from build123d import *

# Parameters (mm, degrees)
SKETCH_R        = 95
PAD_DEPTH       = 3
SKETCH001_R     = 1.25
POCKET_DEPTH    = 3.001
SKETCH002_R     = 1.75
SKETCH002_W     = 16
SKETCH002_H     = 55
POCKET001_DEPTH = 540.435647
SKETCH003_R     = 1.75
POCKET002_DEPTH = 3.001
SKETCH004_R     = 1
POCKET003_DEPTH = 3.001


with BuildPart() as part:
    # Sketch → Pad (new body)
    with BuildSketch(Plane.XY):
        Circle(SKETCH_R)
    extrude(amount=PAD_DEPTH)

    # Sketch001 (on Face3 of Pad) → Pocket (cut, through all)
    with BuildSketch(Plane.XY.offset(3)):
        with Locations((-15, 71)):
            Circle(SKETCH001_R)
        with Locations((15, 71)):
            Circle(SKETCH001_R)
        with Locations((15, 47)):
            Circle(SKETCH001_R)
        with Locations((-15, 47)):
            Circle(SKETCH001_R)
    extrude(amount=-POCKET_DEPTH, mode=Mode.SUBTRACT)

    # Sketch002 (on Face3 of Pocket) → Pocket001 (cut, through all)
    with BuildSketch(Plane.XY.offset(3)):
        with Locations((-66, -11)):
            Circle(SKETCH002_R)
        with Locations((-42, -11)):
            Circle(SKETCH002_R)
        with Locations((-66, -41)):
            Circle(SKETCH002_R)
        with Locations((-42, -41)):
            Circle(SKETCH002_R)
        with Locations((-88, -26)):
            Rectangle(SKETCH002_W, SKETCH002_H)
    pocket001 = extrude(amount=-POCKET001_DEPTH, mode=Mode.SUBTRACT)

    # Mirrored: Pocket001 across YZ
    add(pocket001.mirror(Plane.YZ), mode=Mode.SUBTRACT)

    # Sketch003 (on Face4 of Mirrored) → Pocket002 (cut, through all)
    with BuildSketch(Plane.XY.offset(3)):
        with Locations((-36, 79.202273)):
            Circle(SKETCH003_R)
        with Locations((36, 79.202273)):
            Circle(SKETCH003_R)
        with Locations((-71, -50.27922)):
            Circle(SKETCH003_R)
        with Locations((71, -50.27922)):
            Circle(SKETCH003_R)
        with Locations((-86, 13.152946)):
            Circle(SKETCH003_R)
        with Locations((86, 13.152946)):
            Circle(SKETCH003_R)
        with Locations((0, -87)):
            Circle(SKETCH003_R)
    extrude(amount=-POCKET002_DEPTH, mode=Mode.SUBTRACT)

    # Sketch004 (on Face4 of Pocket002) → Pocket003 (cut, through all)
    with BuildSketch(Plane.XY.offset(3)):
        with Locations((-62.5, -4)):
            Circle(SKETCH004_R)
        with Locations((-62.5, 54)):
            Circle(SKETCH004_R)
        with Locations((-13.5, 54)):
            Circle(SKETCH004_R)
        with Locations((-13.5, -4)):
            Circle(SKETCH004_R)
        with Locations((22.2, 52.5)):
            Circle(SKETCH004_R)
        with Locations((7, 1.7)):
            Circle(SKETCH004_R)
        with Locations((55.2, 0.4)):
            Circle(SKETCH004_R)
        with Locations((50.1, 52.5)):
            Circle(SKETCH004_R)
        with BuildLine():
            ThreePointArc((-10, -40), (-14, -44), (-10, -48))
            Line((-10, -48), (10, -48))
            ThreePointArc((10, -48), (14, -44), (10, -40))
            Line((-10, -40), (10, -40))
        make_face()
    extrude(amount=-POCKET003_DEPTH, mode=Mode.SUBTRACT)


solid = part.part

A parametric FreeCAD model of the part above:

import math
import FreeCAD as App
import Part
import Sketcher

V = App.Vector
Q = App.Units.Quantity


def add_polygon(sketch, points):
    """Adds a closed chain of lines whose ends are joined by coincident constraints."""
    first, n = sketch.GeometryCount, len(points)
    for a, b in zip(points, points[1:] + points[:1]):
        sketch.addGeometry(Part.LineSegment(App.Vector(*a, 0), App.Vector(*b, 0)), False)
    for i in range(n):
        sketch.addConstraint(Sketcher.Constraint("Coincident", first + i, 2, first + (i + 1) % n, 1))

doc = App.newDocument("Part")
params = doc.addObject("Spreadsheet::Sheet", "Params")
for row, (alias, value) in enumerate([
    ("sketch1_diameter", "190 mm"),
    ("pad1_length", "3 mm"),
    ("sketch2_diameter", "2.5 mm"),
    ("sketch3_diameter", "3.5 mm"),
    ("sketch3_width", "16 mm"),
    ("sketch3_height", "55 mm"),
    ("sketch4_diameter", "3.5 mm"),
    ("sketch5_diameter", "2 mm"),
    ("sketch5_radius", "4 mm"),
    ("sketch5_width", "20 mm"),
], start=1):
    params.set(f"A{row}", alias)
    params.set(f"B{row}", "=" + value)
    params.setAlias(f"B{row}", alias)

body = doc.addObject("PartDesign::Body", "Body")

# Sketch on XY plane
sketch1 = body.newObject("Sketcher::SketchObject", "Sketch")
sketch1.AttachmentSupport = (doc.getObject("XY_Plane"), [""])
sketch1.MapMode = "FlatFace"
sketch1.addGeometry(Part.Circle(V(0, 0, 0), V(0, 0, 1), 95), False)
sketch1.addConstraint([
    Sketcher.Constraint("Coincident", 0, 3, -1, 1),
    Sketcher.Constraint("Diameter", 0, Q("190 mm")),
])
sketch1.setExpression("Constraints[1]", "Params.sketch1_diameter")
pad1 = body.newObject("PartDesign::Pad", "Pad")
pad1.Profile = sketch1
pad1.setExpression("Length", "Params.pad1_length")

# Sketch on XY plane
sketch2 = body.newObject("Sketcher::SketchObject", "Sketch001")
sketch2.AttachmentSupport = (doc.getObject("XY_Plane"), [""])
sketch2.MapMode = "FlatFace"
sketch2.AttachmentOffset = App.Placement(V(0, 0, 3), App.Rotation())
sketch2.addGeometry([
    Part.Circle(V(-15, 71, 0), V(0, 0, 1), 1.2),
    Part.Circle(V(15, 71, 0), V(0, 0, 1), 1.2),
    Part.Circle(V(15, 47, 0), V(0, 0, 1), 1.2),
    Part.Circle(V(-15, 47, 0), V(0, 0, 1), 1.2),
], False)
sketch2.addConstraint([
    Sketcher.Constraint("Equal", 0, 1),
    Sketcher.Constraint("Equal", 1, 2),
    Sketcher.Constraint("Equal", 2, 3),
    Sketcher.Constraint("Symmetric", 0, 3, 1, 3, -2),
    Sketcher.Constraint("Symmetric", 2, 3, 3, 3, -2),
    Sketcher.Constraint("Vertical", 1, 3, 2, 3),
    Sketcher.Constraint("Diameter", 0, Q("2.5 mm")),
    Sketcher.Constraint("DistanceX", 0, 3, -1, 1, Q("15 mm")),
    Sketcher.Constraint("DistanceY", -1, 1, 0, 3, Q("71 mm")),
    Sketcher.Constraint("DistanceY", -1, 1, 2, 3, Q("47 mm")),
])
sketch2.setExpression("Constraints[6]", "Params.sketch2_diameter")
pocket1 = body.newObject("PartDesign::Pocket", "Pocket")
pocket1.Profile = sketch2
pocket1.Type = "ThroughAll"

# Sketch on XY plane
sketch3 = body.newObject("Sketcher::SketchObject", "Sketch002")
sketch3.AttachmentSupport = (doc.getObject("XY_Plane"), [""])
sketch3.MapMode = "FlatFace"
sketch3.AttachmentOffset = App.Placement(V(0, 0, 3), App.Rotation())
sketch3.addGeometry(Part.Circle(V(-66, -11, 0), V(0, 0, 1), 1.8), False)  # 0
sketch3.addGeometry(Part.Circle(V(-42, -11, 0), V(0, 0, 1), 1.8), False)  # 1
sketch3.addGeometry(Part.Circle(V(-66, -41, 0), V(0, 0, 1), 1.8), False)  # 2
sketch3.addGeometry(Part.Circle(V(-42, -41, 0), V(0, 0, 1), 1.8), False)  # 3
add_polygon(sketch3, [(-96, 1.5), (-96, -53.5), (-80, -53.5), (-80, 1.5)])  # lines 4-7
sketch3.addConstraint([
    Sketcher.Constraint("Vertical", 4),
    Sketcher.Constraint("Horizontal", 5),
    Sketcher.Constraint("Vertical", 6),
    Sketcher.Constraint("Horizontal", 7),
    Sketcher.Constraint("Equal", 0, 1),
    Sketcher.Constraint("Equal", 1, 2),
    Sketcher.Constraint("Equal", 2, 3),
    Sketcher.Constraint("Horizontal", 0, 3, 1, 3),
    Sketcher.Constraint("Horizontal", 2, 3, 3, 3),
    Sketcher.Constraint("Vertical", 0, 3, 2, 3),
    Sketcher.Constraint("Vertical", 1, 3, 3, 3),
    Sketcher.Constraint("Diameter", 0, Q("3.5 mm")),
    Sketcher.Constraint("DistanceX", 5, 1, 5, 2, Q("16 mm")),
    Sketcher.Constraint("DistanceY", 4, 2, 4, 1, Q("55 mm")),
    Sketcher.Constraint("DistanceX", 0, 3, -1, 1, Q("66 mm")),
    Sketcher.Constraint("DistanceY", 0, 3, -1, 1, Q("11 mm")),
    Sketcher.Constraint("DistanceX", 1, 3, -1, 1, Q("42 mm")),
    Sketcher.Constraint("DistanceY", 2, 3, -1, 1, Q("41 mm")),
    Sketcher.Constraint("DistanceX", 4, 2, -1, 1, Q("96 mm")),
    Sketcher.Constraint("DistanceY", 4, 2, -1, 1, Q("53.5 mm")),
])
sketch3.setExpression("Constraints[15]", "Params.sketch3_diameter")
sketch3.setExpression("Constraints[16]", "Params.sketch3_width")
sketch3.setExpression("Constraints[17]", "Params.sketch3_height")
pocket2 = body.newObject("PartDesign::Pocket", "Pocket001")
pocket2.Profile = sketch3
pocket2.Type = "ThroughAll"
doc.recompute()

mirrored = body.newObject("PartDesign::Mirrored", "Mirrored")
mirrored.Originals = [pocket2]
mirrored.MirrorPlane = (doc.getObject("YZ_Plane"), [""])
body.Tip = mirrored

# Sketch on XY plane
sketch4 = body.newObject("Sketcher::SketchObject", "Sketch003")
sketch4.AttachmentSupport = (doc.getObject("XY_Plane"), [""])
sketch4.MapMode = "FlatFace"
sketch4.AttachmentOffset = App.Placement(V(0, 0, 3), App.Rotation())
sketch4.addGeometry([
    Part.Circle(V(-36, 79.2, 0), V(0, 0, 1), 1.8),  # 0
    Part.Circle(V(36, 79.2, 0), V(0, 0, 1), 1.8),  # 1
    Part.Circle(V(-71, -50.3, 0), V(0, 0, 1), 1.8),  # 2
    Part.Circle(V(71, -50.3, 0), V(0, 0, 1), 1.8),  # 3
    Part.Circle(V(-86, 13.2, 0), V(0, 0, 1), 1.8),  # 4
    Part.Circle(V(86, 13.2, 0), V(0, 0, 1), 1.8),  # 5
    Part.Circle(V(0, -87, 0), V(0, 0, 1), 1.8),  # 6
], False)
sketch4.addConstraint([
    Sketcher.Constraint("Equal", 0, 1),
    Sketcher.Constraint("Equal", 1, 2),
    Sketcher.Constraint("Equal", 2, 3),
    Sketcher.Constraint("Equal", 3, 4),
    Sketcher.Constraint("Equal", 4, 5),
    Sketcher.Constraint("Equal", 5, 6),
    Sketcher.Constraint("Symmetric", 0, 3, 1, 3, -2),
    Sketcher.Constraint("Symmetric", 2, 3, 3, 3, -2),
    Sketcher.Constraint("Symmetric", 4, 3, 5, 3, -2),
    Sketcher.Constraint("PointOnObject", 6, 3, -2),
    Sketcher.Constraint("Diameter", 0, Q("3.5 mm")),
    Sketcher.Constraint("DistanceX", 0, 3, -1, 1, Q("36 mm")),
    Sketcher.Constraint("DistanceX", 2, 3, -1, 1, Q("71 mm")),
    Sketcher.Constraint("DistanceX", 4, 3, -1, 1, Q("86 mm")),
    Sketcher.Constraint("DistanceY", 6, 3, -1, 1, Q("87 mm")),
    Sketcher.Constraint("DistanceY", 2, 3, -1, 1, Q("50.27922 mm")),
    Sketcher.Constraint("DistanceY", -1, 1, 0, 3, Q("79.202273 mm")),
    Sketcher.Constraint("DistanceY", -1, 1, 4, 3, Q("13.152946 mm")),
])
sketch4.setExpression("Constraints[10]", "Params.sketch4_diameter")
pocket3 = body.newObject("PartDesign::Pocket", "Pocket002")
pocket3.Profile = sketch4
pocket3.Type = "ThroughAll"

# Sketch on XY plane
sketch5 = body.newObject("Sketcher::SketchObject", "Sketch004")
sketch5.AttachmentSupport = (doc.getObject("XY_Plane"), [""])
sketch5.MapMode = "FlatFace"
sketch5.AttachmentOffset = App.Placement(V(0, 0, 3), App.Rotation())
sketch5.addGeometry([
    Part.Circle(V(-62.5, -4, 0), V(0, 0, 1), 1),  # 0
    Part.Circle(V(-62.5, 54, 0), V(0, 0, 1), 1),  # 1
    Part.Circle(V(-13.5, 54, 0), V(0, 0, 1), 1),  # 2
    Part.Circle(V(-13.5, -4, 0), V(0, 0, 1), 1),  # 3
    Part.Circle(V(22.2, 52.5, 0), V(0, 0, 1), 1),  # 4
    Part.Circle(V(7, 1.7, 0), V(0, 0, 1), 1),  # 5
    Part.Circle(V(55.2, 0.4, 0), V(0, 0, 1), 1),  # 6
    Part.Circle(V(50.1, 52.5, 0), V(0, 0, 1), 1),  # 7
    Part.ArcOfCircle(Part.Circle(V(-10, -44, 0), V(0, 0, 1), 4), math.radians(90), math.radians(270)),  # 8
    Part.LineSegment(V(-10, -48, 0), V(10, -48, 0)),  # 9
    Part.ArcOfCircle(Part.Circle(V(10, -44, 0), V(0, 0, 1), 4), math.radians(-90), math.radians(90)),  # 10
    Part.LineSegment(V(10, -40, 0), V(-10, -40, 0)),  # 11
], False)
sketch5.addConstraint([
    Sketcher.Constraint("Tangent", 8, 2, 9, 1),
    Sketcher.Constraint("Tangent", 9, 2, 10, 1),
    Sketcher.Constraint("Tangent", 10, 2, 11, 1),
    Sketcher.Constraint("Tangent", 11, 2, 8, 1),
    Sketcher.Constraint("Horizontal", 9),
    Sketcher.Constraint("Horizontal", 11),
    Sketcher.Constraint("Equal", 0, 1),
    Sketcher.Constraint("Equal", 1, 2),
    Sketcher.Constraint("Equal", 2, 3),
    Sketcher.Constraint("Equal", 3, 4),
    Sketcher.Constraint("Equal", 4, 5),
    Sketcher.Constraint("Equal", 5, 6),
    Sketcher.Constraint("Equal", 6, 7),
    Sketcher.Constraint("Horizontal", 1, 3, 2, 3),
    Sketcher.Constraint("Horizontal", 0, 3, 3, 3),
    Sketcher.Constraint("Horizontal", 4, 3, 7, 3),
    Sketcher.Constraint("Vertical", 0, 3, 1, 3),
    Sketcher.Constraint("Vertical", 2, 3, 3, 3),
    Sketcher.Constraint("Diameter", 0, Q("2 mm")),
    Sketcher.Constraint("Radius", 8, Q("4 mm")),
    Sketcher.Constraint("DistanceX", 9, 1, 9, 2, Q("20 mm")),
    Sketcher.Constraint("DistanceY", 0, 3, -1, 1, Q("4 mm")),
    Sketcher.Constraint("DistanceY", -1, 1, 1, 3, Q("54 mm")),
    Sketcher.Constraint("DistanceX", -1, 1, 5, 3, Q("7 mm")),
    Sketcher.Constraint("DistanceX", 8, 3, -1, 1, Q("10 mm")),
    Sketcher.Constraint("DistanceY", 8, 3, -1, 1, Q("44 mm")),
    Sketcher.Constraint("DistanceX", 1, 3, 2, 3, Q("49 mm")),
    Sketcher.Constraint("DistanceX", 4, 3, 6, 3, Q("33 mm")),
    Sketcher.Constraint("DistanceX", 0, 3, -1, 1, Q("62.5 mm")),
    Sketcher.Constraint("DistanceX", -1, 1, 4, 3, Q("22.2 mm")),
    Sketcher.Constraint("DistanceY", -1, 1, 4, 3, Q("52.5 mm")),
    Sketcher.Constraint("DistanceY", -1, 1, 5, 3, Q("1.7 mm")),
    Sketcher.Constraint("DistanceY", -1, 1, 6, 3, Q("0.4 mm")),
    Sketcher.Constraint("DistanceX", -1, 1, 7, 3, Q("50.1 mm")),
])
sketch5.setExpression("Constraints[18]", "Params.sketch5_diameter")
sketch5.setExpression("Constraints[19]", "Params.sketch5_radius")
sketch5.setExpression("Constraints[20]", "Params.sketch5_width")
pocket4 = body.newObject("PartDesign::Pocket", "Pocket003")
pocket4.Profile = sketch5
pocket4.Type = "ThroughAll"

doc.recompute()
